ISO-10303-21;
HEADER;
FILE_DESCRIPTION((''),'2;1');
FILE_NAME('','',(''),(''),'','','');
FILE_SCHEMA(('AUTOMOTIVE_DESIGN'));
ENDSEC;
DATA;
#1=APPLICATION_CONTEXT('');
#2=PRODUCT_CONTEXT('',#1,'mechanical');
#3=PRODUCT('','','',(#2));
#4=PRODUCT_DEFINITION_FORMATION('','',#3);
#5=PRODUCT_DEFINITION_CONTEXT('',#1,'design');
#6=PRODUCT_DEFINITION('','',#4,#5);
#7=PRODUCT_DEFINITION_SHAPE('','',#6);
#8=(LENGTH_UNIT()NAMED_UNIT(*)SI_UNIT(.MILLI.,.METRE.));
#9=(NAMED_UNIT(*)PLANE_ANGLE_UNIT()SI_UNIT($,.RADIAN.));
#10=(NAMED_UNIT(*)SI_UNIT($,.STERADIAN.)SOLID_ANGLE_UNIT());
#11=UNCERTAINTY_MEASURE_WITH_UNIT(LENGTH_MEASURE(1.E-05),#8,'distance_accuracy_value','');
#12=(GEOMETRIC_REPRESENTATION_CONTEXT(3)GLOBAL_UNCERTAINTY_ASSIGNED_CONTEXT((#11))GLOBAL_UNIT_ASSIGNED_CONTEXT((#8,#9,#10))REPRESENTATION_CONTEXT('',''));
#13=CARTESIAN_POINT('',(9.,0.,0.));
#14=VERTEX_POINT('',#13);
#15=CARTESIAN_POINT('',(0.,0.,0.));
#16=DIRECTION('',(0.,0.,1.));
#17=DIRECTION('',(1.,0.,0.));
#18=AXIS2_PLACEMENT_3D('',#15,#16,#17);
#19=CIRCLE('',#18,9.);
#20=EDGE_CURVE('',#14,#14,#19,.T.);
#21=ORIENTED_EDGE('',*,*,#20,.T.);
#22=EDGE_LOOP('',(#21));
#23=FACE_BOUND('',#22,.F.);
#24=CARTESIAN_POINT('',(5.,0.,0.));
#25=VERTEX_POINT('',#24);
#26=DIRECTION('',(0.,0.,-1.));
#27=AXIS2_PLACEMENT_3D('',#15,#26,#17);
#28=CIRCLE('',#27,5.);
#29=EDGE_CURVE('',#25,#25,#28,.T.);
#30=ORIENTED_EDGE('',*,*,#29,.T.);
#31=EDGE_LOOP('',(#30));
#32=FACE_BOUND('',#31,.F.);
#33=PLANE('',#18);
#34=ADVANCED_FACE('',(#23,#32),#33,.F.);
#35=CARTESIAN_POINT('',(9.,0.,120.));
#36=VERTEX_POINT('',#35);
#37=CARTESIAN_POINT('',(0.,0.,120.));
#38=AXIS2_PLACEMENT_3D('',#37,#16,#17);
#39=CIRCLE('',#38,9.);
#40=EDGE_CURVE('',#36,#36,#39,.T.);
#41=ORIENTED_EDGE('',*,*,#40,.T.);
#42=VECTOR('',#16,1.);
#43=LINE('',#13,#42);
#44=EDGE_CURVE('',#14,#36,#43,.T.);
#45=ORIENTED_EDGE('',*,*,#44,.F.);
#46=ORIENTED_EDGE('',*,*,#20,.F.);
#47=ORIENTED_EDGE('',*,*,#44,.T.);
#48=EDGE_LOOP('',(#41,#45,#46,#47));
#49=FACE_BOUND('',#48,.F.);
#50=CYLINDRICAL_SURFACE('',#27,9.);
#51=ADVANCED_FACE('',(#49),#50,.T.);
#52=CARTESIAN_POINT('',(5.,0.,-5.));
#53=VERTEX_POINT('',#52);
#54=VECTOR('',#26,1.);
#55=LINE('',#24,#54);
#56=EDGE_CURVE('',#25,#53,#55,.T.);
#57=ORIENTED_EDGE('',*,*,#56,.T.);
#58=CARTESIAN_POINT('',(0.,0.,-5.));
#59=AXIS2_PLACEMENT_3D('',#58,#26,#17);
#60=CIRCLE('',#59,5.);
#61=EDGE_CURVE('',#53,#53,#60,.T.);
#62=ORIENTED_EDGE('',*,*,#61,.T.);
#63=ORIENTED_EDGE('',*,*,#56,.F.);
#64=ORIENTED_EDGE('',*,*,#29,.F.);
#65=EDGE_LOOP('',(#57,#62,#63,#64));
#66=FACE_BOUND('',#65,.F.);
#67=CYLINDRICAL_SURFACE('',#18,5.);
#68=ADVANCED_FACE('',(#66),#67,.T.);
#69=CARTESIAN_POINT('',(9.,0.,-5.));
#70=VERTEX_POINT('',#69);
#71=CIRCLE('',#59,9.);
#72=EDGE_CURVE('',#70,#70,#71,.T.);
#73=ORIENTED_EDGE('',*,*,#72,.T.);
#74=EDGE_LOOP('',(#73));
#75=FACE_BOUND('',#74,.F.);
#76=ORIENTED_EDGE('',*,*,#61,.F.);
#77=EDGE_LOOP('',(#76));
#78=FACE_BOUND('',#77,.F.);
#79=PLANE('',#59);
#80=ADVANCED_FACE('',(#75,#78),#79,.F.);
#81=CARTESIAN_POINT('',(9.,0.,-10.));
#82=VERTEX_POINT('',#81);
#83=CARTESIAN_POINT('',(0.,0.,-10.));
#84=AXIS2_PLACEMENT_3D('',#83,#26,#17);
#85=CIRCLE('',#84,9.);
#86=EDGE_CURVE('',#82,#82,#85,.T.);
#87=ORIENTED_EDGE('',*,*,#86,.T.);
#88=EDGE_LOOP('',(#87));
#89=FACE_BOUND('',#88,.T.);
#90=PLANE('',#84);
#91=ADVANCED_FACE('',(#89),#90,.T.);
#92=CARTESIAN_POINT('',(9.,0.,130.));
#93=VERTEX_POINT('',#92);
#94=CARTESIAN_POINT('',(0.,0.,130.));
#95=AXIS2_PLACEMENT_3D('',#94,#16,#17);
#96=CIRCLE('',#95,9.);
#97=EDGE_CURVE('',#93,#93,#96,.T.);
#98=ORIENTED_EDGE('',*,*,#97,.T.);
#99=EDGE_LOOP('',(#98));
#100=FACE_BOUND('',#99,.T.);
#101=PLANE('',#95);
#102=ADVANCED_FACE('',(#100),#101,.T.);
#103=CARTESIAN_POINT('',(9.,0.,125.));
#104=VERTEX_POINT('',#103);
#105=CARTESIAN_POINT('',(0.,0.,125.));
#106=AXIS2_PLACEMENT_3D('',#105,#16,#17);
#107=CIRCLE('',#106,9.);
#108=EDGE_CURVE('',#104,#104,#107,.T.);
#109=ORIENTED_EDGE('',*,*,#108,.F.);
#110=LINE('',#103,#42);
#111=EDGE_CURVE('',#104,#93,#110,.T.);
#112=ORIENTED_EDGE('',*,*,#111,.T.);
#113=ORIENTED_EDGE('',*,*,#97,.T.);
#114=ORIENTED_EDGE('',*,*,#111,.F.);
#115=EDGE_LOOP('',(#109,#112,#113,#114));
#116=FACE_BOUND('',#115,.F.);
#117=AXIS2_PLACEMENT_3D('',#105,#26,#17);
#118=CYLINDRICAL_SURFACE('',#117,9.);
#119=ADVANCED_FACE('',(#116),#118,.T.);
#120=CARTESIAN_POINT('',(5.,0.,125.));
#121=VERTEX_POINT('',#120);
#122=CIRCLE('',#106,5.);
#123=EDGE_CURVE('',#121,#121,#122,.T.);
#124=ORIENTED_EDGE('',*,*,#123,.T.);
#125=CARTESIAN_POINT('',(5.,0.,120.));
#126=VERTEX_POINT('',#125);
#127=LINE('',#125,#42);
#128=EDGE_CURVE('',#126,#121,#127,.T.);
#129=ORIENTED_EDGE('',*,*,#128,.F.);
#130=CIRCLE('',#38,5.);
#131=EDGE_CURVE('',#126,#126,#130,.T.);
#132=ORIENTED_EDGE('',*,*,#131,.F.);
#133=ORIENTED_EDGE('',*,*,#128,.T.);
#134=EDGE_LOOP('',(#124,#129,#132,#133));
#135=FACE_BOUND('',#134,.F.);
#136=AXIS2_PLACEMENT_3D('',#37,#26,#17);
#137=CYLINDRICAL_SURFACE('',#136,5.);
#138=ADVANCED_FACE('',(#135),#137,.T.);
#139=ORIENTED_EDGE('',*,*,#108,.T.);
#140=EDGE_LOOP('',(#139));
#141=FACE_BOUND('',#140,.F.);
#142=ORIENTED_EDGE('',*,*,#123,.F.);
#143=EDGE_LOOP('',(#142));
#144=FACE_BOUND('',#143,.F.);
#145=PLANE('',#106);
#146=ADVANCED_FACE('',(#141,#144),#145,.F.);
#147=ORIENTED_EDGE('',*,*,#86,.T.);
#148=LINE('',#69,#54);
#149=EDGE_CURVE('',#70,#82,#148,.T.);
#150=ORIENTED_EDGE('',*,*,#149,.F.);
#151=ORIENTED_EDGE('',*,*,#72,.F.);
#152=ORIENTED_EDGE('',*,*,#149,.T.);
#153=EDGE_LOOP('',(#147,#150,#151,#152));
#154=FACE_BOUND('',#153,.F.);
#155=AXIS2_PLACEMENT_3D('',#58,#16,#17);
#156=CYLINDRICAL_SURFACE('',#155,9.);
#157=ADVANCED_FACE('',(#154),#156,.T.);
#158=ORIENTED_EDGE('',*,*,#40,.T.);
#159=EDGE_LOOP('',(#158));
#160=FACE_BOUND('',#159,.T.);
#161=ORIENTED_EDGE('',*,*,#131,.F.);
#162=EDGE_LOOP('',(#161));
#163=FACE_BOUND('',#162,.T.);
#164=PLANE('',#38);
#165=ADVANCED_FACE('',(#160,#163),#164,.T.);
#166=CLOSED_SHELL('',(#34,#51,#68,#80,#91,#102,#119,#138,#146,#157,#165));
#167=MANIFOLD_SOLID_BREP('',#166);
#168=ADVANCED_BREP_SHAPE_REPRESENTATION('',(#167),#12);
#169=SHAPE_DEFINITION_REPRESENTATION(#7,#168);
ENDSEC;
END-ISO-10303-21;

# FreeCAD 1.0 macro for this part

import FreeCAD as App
import Part
import Sketcher
Q = App.Units.Quantity

doc = App.newDocument("Part")
params = doc.addObject("Spreadsheet::Sheet", "Params")
for row, (alias, value) in enumerate([
    ("sketch1_diameter", "18 mm"),
    ("pad1_length", "120 mm"),
    ("sketch2_diameter", "10 mm"),
    ("pad2_length", "5 mm"),
    ("sketch3_diameter", "18 mm"),
    ("pad3_length", "5 mm"),
    ("sketch4_diameter", "10 mm"),
    ("pad4_length", "5 mm"),
    ("sketch5_diameter", "18 mm"),
    ("pad5_length", "5 mm"),
], start=1):
    params.set(f"A{row}", alias)
    params.set(f"B{row}", "=" + value)
    params.setAlias(f"B{row}", alias)

body = doc.addObject("PartDesign::Body", "Body")

# Sketch on XY plane
sketch1 = body.newObject("Sketcher::SketchObject", "Sketch")
sketch1.AttachmentSupport = (doc.getObject("XY_Plane"), [""])
sketch1.MapMode = "FlatFace"
sketch1.addGeometry(Part.Circle(App.Vector(0, 0, 0), App.Vector(0, 0, 1), 9), False)
sketch1.addConstraint(Sketcher.Constraint("Coincident", 0, 3, -1, 1))
sketch1.addConstraint(Sketcher.Constraint("Diameter", 0, Q("18 mm")))
sketch1.setExpression("Constraints[1]", "Params.sketch1_diameter")
pad1 = body.newObject("PartDesign::Pad", "Pad")
pad1.Profile = sketch1
pad1.setExpression("Length", "Params.pad1_length")

# Sketch on XY plane
sketch2 = body.newObject("Sketcher::SketchObject", "Sketch001")
sketch2.AttachmentSupport = (doc.getObject("XY_Plane"), [""])
sketch2.MapMode = "FlatFace"
sketch2.AttachmentOffset = App.Placement(App.Vector(0, 0, 120), App.Rotation())
sketch2.addGeometry(Part.Circle(App.Vector(0, 0, 0), App.Vector(0, 0, 1), 5), False)
sketch2.addConstraint(Sketcher.Constraint("Coincident", 0, 3, -1, 1))
sketch2.addConstraint(Sketcher.Constraint("Diameter", 0, Q("10 mm")))
sketch2.setExpression("Constraints[1]", "Params.sketch2_diameter")
pad2 = body.newObject("PartDesign::Pad", "Pad001")
pad2.Profile = sketch2
pad2.setExpression("Length", "Params.pad2_length")

# Sketch on XY plane
sketch3 = body.newObject("Sketcher::SketchObject", "Sketch002")
sketch3.AttachmentSupport = (doc.getObject("XY_Plane"), [""])
sketch3.MapMode = "FlatFace"
sketch3.AttachmentOffset = App.Placement(App.Vector(0, 0, 125), App.Rotation())
sketch3.addGeometry(Part.Circle(App.Vector(0, 0, 0), App.Vector(0, 0, 1), 9), False)
sketch3.addConstraint(Sketcher.Constraint("Coincident", 0, 3, -1, 1))
sketch3.addConstraint(Sketcher.Constraint("Diameter", 0, Q("18 mm")))
sketch3.setExpression("Constraints[1]", "Params.sketch3_diameter")
pad3 = body.newObject("PartDesign::Pad", "Pad002")
pad3.Profile = sketch3
pad3.setExpression("Length", "Params.pad3_length")

# Sketch on XY plane
sketch4 = body.newObject("Sketcher::SketchObject", "Sketch003")
sketch4.AttachmentSupport = (doc.getObject("XY_Plane"), [""])
sketch4.MapMode = "FlatFace"
sketch4.addGeometry(Part.Circle(App.Vector(0, 0, 0), App.Vector(0, 0, 1), 5), False)
sketch4.addConstraint(Sketcher.Constraint("Coincident", 0, 3, -1, 1))
sketch4.addConstraint(Sketcher.Constraint("Diameter", 0, Q("10 mm")))
sketch4.setExpression("Constraints[1]", "Params.sketch4_diameter")
pad4 = body.newObject("PartDesign::Pad", "Pad003")
pad4.Profile = sketch4
pad4.setExpression("Length", "Params.pad4_length")
pad4.Reversed = True

# Sketch on XY plane
sketch5 = body.newObject("Sketcher::SketchObject", "Sketch004")
sketch5.AttachmentSupport = (doc.getObject("XY_Plane"), [""])
sketch5.MapMode = "FlatFace"
sketch5.AttachmentOffset = App.Placement(App.Vector(0, 0, -5), App.Rotation())
sketch5.addGeometry(Part.Circle(App.Vector(0, 0, 0), App.Vector(0, 0, 1), 9), False)
sketch5.addConstraint(Sketcher.Constraint("Coincident", 0, 3, -1, 1))
sketch5.addConstraint(Sketcher.Constraint("Diameter", 0, Q("18 mm")))
sketch5.setExpression("Constraints[1]", "Params.sketch5_diameter")
pad5 = body.newObject("PartDesign::Pad", "Pad004")
pad5.Profile = sketch5
pad5.setExpression("Length", "Params.pad5_length")
pad5.Reversed = True

doc.recompute()
